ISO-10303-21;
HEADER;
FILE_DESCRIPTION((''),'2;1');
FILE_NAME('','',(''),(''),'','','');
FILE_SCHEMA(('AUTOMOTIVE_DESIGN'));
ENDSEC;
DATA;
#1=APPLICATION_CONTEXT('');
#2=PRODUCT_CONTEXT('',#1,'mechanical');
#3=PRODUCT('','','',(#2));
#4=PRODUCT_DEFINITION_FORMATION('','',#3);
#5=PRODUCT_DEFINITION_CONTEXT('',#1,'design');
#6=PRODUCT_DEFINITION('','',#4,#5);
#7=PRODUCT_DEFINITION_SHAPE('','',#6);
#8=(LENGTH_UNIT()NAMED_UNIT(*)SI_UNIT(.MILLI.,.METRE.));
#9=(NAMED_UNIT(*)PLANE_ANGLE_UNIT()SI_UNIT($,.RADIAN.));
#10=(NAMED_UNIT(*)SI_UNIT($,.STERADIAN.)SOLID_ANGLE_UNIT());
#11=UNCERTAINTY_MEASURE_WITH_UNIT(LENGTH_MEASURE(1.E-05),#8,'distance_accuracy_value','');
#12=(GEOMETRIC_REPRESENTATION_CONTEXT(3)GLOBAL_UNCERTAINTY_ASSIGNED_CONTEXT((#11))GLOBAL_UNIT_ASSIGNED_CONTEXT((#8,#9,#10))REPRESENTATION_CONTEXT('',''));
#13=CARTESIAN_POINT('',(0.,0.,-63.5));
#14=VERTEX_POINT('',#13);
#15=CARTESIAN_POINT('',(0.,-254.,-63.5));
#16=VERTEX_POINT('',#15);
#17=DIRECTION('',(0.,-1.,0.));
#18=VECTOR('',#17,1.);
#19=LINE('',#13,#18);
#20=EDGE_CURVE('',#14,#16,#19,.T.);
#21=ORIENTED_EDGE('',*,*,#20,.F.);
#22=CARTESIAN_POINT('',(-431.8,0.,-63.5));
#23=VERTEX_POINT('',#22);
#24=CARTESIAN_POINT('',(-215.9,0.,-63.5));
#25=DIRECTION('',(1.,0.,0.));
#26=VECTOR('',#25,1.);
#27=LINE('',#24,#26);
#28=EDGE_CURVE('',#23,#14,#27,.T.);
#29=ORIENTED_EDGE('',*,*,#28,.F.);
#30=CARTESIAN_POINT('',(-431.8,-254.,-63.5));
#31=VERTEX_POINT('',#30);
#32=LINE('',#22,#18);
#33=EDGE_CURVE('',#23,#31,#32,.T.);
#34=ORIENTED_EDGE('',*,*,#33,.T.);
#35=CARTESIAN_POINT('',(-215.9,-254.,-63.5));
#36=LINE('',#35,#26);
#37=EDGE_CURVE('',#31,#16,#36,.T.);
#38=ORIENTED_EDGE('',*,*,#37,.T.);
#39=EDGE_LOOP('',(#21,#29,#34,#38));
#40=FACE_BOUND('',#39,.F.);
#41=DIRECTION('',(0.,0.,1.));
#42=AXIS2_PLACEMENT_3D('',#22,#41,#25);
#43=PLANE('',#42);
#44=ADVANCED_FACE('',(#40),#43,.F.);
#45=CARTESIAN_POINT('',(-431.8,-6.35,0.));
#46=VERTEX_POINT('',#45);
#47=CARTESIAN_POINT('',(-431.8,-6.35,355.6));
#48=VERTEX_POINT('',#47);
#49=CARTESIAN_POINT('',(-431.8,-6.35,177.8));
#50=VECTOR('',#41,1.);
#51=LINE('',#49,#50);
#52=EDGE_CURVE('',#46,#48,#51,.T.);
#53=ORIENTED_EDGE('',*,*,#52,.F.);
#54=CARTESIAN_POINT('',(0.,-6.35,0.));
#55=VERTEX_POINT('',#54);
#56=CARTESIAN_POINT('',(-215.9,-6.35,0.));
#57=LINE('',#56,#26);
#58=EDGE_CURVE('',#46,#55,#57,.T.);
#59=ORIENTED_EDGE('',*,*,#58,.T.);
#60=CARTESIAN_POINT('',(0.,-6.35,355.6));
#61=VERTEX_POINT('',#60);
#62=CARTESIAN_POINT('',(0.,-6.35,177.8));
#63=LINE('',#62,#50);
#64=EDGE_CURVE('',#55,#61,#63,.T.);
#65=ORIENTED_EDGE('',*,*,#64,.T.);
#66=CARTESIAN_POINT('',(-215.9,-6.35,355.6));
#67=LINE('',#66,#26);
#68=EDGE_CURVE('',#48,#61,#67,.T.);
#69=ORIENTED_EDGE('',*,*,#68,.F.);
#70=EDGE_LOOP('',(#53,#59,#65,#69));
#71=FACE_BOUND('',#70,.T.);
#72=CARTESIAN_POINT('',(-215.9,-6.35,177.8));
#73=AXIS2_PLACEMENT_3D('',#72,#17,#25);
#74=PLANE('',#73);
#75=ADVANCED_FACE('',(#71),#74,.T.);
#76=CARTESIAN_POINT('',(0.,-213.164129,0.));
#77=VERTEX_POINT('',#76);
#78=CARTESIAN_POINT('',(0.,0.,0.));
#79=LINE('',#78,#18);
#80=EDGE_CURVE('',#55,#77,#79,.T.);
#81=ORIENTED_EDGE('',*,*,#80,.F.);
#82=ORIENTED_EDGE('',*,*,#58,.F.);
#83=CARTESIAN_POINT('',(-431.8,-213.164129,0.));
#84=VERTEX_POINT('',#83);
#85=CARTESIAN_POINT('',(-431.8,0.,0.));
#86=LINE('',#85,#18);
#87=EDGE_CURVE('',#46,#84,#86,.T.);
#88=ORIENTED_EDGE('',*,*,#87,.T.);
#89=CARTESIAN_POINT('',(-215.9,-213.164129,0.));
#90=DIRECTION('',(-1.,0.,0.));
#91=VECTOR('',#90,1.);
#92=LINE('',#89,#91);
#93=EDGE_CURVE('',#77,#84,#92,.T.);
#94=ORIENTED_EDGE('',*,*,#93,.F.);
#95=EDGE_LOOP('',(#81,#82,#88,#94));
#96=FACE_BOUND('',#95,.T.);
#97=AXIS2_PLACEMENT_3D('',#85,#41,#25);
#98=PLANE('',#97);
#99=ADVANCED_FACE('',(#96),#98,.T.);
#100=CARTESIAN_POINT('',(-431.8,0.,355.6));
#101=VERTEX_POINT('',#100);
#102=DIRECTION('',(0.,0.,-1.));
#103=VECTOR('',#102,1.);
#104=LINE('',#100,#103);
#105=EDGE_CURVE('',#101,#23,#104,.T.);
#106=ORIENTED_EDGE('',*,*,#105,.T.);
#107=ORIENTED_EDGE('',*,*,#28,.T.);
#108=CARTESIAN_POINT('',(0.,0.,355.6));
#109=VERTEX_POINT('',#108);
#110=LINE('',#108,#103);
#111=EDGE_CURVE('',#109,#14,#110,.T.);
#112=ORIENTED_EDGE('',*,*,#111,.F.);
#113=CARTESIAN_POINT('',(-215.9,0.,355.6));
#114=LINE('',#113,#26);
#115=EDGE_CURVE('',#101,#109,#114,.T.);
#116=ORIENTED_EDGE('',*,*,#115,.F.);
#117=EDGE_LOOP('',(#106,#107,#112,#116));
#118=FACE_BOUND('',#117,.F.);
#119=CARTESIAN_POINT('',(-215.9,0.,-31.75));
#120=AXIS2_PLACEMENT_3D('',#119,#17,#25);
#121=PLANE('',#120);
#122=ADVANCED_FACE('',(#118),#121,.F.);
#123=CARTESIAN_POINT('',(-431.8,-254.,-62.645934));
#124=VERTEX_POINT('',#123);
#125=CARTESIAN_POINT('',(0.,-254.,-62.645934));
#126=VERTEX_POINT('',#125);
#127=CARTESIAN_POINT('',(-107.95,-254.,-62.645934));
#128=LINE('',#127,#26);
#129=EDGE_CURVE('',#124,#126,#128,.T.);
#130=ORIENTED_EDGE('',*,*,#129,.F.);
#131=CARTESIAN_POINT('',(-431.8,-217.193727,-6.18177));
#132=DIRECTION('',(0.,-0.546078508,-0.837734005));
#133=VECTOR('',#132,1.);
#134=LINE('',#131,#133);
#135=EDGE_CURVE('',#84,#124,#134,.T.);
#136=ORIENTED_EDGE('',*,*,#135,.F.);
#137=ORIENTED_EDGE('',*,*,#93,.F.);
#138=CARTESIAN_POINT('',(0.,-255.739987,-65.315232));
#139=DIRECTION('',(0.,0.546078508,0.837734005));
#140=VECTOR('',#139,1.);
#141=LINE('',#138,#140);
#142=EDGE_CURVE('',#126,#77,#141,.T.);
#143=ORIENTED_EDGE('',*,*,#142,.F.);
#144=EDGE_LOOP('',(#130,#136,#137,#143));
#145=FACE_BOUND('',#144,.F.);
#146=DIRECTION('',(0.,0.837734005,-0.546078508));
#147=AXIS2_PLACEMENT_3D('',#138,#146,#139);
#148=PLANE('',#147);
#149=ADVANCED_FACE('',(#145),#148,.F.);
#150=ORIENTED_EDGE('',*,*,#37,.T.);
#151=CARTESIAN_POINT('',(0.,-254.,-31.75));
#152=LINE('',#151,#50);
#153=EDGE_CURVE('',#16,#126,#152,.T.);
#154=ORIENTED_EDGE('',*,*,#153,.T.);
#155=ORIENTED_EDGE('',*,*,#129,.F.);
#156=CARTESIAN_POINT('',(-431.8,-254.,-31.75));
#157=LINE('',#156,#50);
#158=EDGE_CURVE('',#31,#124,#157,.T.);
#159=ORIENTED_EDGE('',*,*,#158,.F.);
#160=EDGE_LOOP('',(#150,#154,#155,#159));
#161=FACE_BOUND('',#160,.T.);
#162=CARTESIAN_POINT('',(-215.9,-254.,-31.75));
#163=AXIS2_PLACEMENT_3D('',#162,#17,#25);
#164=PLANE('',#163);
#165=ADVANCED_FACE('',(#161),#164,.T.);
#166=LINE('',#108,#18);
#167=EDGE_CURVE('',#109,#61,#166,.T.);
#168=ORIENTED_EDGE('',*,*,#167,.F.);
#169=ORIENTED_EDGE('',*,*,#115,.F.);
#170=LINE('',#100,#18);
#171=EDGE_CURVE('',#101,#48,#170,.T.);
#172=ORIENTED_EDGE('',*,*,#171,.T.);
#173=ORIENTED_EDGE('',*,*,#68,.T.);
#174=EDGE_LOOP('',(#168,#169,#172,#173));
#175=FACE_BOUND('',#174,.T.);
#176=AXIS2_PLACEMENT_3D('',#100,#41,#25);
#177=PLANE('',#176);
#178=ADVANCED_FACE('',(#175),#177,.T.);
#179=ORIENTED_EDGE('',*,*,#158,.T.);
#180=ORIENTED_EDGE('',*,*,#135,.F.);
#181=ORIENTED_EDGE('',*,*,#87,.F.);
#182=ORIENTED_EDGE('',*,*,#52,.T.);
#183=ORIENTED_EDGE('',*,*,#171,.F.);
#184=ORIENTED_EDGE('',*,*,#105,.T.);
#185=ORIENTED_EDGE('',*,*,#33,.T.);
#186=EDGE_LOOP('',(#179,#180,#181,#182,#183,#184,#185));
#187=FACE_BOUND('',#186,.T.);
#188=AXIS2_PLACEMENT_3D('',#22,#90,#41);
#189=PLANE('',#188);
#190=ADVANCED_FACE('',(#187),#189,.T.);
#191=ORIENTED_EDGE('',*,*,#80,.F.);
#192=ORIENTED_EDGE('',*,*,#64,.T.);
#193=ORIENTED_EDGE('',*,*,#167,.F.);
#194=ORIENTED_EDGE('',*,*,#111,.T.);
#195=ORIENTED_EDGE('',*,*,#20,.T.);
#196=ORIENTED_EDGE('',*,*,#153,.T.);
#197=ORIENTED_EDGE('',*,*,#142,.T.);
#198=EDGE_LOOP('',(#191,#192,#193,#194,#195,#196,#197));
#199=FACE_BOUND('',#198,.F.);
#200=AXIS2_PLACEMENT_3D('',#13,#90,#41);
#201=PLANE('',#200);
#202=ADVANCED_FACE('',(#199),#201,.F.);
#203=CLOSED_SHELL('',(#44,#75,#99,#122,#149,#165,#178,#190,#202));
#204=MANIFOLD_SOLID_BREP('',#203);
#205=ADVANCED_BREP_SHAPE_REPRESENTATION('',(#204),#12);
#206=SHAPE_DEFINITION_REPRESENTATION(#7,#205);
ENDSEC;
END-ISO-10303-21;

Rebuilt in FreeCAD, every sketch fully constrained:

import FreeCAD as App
import Part
import Sketcher
Q = App.Units.Quantity

doc = App.newDocument("Part")
body = doc.addObject("PartDesign::Body", "Body")

# Sketch on XZ plane
sketch1 = body.newObject("Sketcher::SketchObject", "Sketch")
sketch1.AttachmentSupport = (doc.getObject("XZ_Plane"), [""])
sketch1.MapMode = "FlatFace"
sketch1.addGeometry([
    Part.LineSegment(App.Vector(-432, 356, 0), App.Vector(-432, 0, 0)),
    Part.LineSegment(App.Vector(-432, 0, 0), App.Vector(0, 0, 0)),
    Part.LineSegment(App.Vector(0, 0, 0), App.Vector(0, 356, 0)),
    Part.LineSegment(App.Vector(0, 356, 0), App.Vector(-432, 356, 0)),
], False)
sketch1.addConstraint([
    Sketcher.Constraint("Coincident", 0, 2, 1, 1),
    Sketcher.Constraint("Coincident", 1, 2, 2, 1),
    Sketcher.Constraint("Coincident", 2, 2, 3, 1),
    Sketcher.Constraint("Coincident", 3, 2, 0, 1),
    Sketcher.Constraint("Vertical", 0),
    Sketcher.Constraint("Horizontal", 1),
    Sketcher.Constraint("Vertical", 2),
    Sketcher.Constraint("Horizontal", 3),
    Sketcher.Constraint("Coincident", 1, 2, -1, 1),
    Sketcher.Constraint("DistanceX", 1, 1, 1, 2, Q("17 in")),
    Sketcher.Constraint("DistanceY", 0, 2, 0, 1, Q("14 in")),
])
pad1 = body.newObject("PartDesign::Pad", "Pad")
pad1.Profile = sketch1
pad1.Length = Q("0.25 in")

# Sketch on XZ plane
sketch2 = body.newObject("Sketcher::SketchObject", "Sketch001")
sketch2.AttachmentSupport = (doc.getObject("XZ_Plane"), [""])
sketch2.MapMode = "FlatFace"
sketch2.addGeometry([
    Part.LineSegment(App.Vector(-432, 0, 0), App.Vector(-432, -64, 0)),
    Part.LineSegment(App.Vector(-432, -64, 0), App.Vector(0, -64, 0)),
    Part.LineSegment(App.Vector(0, -64, 0), App.Vector(0, 0, 0)),
    Part.LineSegment(App.Vector(0, 0, 0), App.Vector(-432, 0, 0)),
], False)
sketch2.addConstraint([
    Sketcher.Constraint("Coincident", 0, 2, 1, 1),
    Sketcher.Constraint("Coincident", 1, 2, 2, 1),
    Sketcher.Constraint("Coincident", 2, 2, 3, 1),
    Sketcher.Constraint("Coincident", 3, 2, 0, 1),
    Sketcher.Constraint("Vertical", 0),
    Sketcher.Constraint("Horizontal", 1),
    Sketcher.Constraint("Vertical", 2),
    Sketcher.Constraint("Horizontal", 3),
    Sketcher.Constraint("Coincident", 2, 2, -1, 1),
    Sketcher.Constraint("DistanceX", 1, 1, 1, 2, Q("17 in")),
    Sketcher.Constraint("DistanceY", 0, 2, 0, 1, Q("2.5 in")),
])
pad2 = body.newObject("PartDesign::Pad", "Pad001")
pad2.Profile = sketch2
pad2.Length = Q("10 in")

# Sketch on YZ plane
sketch3 = body.newObject("Sketcher::SketchObject", "Sketch002")
sketch3.AttachmentSupport = (doc.getObject("YZ_Plane"), [""])
sketch3.MapMode = "FlatFace"
sketch3.addGeometry([
    Part.LineSegment(App.Vector(-330, 41, 0), App.Vector(-256, -65, 0)),
    Part.LineSegment(App.Vector(-256, -65, 0), App.Vector(-173, 62, 0)),
    Part.LineSegment(App.Vector(-173, 62, 0), App.Vector(-330, 41, 0)),
], False)
sketch3.addConstraint([
    Sketcher.Constraint("Coincident", 0, 2, 1, 1),
    Sketcher.Constraint("Coincident", 1, 2, 2, 1),
    Sketcher.Constraint("Coincident", 2, 2, 0, 1),
    Sketcher.Constraint("DistanceX", 0, 2, 1, 2, 82.9487),
    Sketcher.Constraint("Distance", 2, 158.774051),
    Sketcher.Constraint("DistanceY", 0, 2, -1, 1, 65.315232),
    Sketcher.Constraint("DistanceX", 2, 2, -1, 1, 330.205292),
    Sketcher.Constraint("DistanceY", -1, 1, 2, 2, 41.198432),
    Sketcher.Constraint("Distance", 0, 129.962465),
])
pocket1 = body.newObject("PartDesign::Pocket", "Pocket")
pocket1.Profile = sketch3
pocket1.Type = "ThroughAll"

doc.recompute()
